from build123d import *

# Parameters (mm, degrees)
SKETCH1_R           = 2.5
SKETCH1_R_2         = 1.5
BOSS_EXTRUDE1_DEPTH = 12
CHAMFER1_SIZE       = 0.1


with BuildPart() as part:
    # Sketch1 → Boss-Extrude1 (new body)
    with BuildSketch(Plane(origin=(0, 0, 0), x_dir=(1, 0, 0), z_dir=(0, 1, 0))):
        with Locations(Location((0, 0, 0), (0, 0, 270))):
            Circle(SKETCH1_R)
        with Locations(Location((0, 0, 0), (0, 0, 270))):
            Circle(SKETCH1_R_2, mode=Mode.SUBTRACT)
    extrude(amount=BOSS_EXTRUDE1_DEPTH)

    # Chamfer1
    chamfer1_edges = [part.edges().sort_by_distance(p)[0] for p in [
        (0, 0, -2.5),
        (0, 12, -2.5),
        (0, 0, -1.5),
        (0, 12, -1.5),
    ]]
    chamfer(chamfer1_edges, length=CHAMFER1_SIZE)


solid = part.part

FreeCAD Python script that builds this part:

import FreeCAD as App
import Part
import Sketcher


def edges_at(feature, points):
    """Names of the edges that pass closest to the given points."""
    edges = feature.Shape.Edges
    near = lambda p: min(range(len(edges)), key=lambda i: edges[i].distToShape(Part.Vertex(*p))[0])
    return sorted({f"Edge{near(p) + 1}" for p in points})

doc = App.newDocument("Part")
body = doc.addObject("PartDesign::Body", "Body")

sketch1 = body.newObject("Sketcher::SketchObject", "Sketch")
sketch1.AttachmentSupport = (doc.getObject("XZ_Plane"), [""])
sketch1.MapMode = "FlatFace"
sketch1.addGeometry([
    Part.Circle(App.Vector(0, 0, 0), App.Vector(0, 0, 1), 2.5),
    Part.Circle(App.Vector(0, 0, 0), App.Vector(0, 0, 1), 1.5),
], False)
sketch1.addConstraint([
    Sketcher.Constraint("Coincident", 0, 3, -1, 1),
    Sketcher.Constraint("Coincident", 1, 3, -1, 1),
    Sketcher.Constraint("Diameter", 0, 5.0),
    Sketcher.Constraint("Diameter", 1, 3.0),
])
pad1 = body.newObject("PartDesign::Pad", "Pad")
pad1.Profile = sketch1
pad1.Length = 12
pad1.Reversed = True
doc.recompute()

chamfer = body.newObject("PartDesign::Chamfer", "Chamfer")
chamfer.Base = (pad1, edges_at(pad1, [
    (0, 0, -2.5),
    (0, 12, -2.5),
    (0, 0, -1.5),
    (0, 12, -1.5),
]))
chamfer.Size = 0.1

doc.recompute()
